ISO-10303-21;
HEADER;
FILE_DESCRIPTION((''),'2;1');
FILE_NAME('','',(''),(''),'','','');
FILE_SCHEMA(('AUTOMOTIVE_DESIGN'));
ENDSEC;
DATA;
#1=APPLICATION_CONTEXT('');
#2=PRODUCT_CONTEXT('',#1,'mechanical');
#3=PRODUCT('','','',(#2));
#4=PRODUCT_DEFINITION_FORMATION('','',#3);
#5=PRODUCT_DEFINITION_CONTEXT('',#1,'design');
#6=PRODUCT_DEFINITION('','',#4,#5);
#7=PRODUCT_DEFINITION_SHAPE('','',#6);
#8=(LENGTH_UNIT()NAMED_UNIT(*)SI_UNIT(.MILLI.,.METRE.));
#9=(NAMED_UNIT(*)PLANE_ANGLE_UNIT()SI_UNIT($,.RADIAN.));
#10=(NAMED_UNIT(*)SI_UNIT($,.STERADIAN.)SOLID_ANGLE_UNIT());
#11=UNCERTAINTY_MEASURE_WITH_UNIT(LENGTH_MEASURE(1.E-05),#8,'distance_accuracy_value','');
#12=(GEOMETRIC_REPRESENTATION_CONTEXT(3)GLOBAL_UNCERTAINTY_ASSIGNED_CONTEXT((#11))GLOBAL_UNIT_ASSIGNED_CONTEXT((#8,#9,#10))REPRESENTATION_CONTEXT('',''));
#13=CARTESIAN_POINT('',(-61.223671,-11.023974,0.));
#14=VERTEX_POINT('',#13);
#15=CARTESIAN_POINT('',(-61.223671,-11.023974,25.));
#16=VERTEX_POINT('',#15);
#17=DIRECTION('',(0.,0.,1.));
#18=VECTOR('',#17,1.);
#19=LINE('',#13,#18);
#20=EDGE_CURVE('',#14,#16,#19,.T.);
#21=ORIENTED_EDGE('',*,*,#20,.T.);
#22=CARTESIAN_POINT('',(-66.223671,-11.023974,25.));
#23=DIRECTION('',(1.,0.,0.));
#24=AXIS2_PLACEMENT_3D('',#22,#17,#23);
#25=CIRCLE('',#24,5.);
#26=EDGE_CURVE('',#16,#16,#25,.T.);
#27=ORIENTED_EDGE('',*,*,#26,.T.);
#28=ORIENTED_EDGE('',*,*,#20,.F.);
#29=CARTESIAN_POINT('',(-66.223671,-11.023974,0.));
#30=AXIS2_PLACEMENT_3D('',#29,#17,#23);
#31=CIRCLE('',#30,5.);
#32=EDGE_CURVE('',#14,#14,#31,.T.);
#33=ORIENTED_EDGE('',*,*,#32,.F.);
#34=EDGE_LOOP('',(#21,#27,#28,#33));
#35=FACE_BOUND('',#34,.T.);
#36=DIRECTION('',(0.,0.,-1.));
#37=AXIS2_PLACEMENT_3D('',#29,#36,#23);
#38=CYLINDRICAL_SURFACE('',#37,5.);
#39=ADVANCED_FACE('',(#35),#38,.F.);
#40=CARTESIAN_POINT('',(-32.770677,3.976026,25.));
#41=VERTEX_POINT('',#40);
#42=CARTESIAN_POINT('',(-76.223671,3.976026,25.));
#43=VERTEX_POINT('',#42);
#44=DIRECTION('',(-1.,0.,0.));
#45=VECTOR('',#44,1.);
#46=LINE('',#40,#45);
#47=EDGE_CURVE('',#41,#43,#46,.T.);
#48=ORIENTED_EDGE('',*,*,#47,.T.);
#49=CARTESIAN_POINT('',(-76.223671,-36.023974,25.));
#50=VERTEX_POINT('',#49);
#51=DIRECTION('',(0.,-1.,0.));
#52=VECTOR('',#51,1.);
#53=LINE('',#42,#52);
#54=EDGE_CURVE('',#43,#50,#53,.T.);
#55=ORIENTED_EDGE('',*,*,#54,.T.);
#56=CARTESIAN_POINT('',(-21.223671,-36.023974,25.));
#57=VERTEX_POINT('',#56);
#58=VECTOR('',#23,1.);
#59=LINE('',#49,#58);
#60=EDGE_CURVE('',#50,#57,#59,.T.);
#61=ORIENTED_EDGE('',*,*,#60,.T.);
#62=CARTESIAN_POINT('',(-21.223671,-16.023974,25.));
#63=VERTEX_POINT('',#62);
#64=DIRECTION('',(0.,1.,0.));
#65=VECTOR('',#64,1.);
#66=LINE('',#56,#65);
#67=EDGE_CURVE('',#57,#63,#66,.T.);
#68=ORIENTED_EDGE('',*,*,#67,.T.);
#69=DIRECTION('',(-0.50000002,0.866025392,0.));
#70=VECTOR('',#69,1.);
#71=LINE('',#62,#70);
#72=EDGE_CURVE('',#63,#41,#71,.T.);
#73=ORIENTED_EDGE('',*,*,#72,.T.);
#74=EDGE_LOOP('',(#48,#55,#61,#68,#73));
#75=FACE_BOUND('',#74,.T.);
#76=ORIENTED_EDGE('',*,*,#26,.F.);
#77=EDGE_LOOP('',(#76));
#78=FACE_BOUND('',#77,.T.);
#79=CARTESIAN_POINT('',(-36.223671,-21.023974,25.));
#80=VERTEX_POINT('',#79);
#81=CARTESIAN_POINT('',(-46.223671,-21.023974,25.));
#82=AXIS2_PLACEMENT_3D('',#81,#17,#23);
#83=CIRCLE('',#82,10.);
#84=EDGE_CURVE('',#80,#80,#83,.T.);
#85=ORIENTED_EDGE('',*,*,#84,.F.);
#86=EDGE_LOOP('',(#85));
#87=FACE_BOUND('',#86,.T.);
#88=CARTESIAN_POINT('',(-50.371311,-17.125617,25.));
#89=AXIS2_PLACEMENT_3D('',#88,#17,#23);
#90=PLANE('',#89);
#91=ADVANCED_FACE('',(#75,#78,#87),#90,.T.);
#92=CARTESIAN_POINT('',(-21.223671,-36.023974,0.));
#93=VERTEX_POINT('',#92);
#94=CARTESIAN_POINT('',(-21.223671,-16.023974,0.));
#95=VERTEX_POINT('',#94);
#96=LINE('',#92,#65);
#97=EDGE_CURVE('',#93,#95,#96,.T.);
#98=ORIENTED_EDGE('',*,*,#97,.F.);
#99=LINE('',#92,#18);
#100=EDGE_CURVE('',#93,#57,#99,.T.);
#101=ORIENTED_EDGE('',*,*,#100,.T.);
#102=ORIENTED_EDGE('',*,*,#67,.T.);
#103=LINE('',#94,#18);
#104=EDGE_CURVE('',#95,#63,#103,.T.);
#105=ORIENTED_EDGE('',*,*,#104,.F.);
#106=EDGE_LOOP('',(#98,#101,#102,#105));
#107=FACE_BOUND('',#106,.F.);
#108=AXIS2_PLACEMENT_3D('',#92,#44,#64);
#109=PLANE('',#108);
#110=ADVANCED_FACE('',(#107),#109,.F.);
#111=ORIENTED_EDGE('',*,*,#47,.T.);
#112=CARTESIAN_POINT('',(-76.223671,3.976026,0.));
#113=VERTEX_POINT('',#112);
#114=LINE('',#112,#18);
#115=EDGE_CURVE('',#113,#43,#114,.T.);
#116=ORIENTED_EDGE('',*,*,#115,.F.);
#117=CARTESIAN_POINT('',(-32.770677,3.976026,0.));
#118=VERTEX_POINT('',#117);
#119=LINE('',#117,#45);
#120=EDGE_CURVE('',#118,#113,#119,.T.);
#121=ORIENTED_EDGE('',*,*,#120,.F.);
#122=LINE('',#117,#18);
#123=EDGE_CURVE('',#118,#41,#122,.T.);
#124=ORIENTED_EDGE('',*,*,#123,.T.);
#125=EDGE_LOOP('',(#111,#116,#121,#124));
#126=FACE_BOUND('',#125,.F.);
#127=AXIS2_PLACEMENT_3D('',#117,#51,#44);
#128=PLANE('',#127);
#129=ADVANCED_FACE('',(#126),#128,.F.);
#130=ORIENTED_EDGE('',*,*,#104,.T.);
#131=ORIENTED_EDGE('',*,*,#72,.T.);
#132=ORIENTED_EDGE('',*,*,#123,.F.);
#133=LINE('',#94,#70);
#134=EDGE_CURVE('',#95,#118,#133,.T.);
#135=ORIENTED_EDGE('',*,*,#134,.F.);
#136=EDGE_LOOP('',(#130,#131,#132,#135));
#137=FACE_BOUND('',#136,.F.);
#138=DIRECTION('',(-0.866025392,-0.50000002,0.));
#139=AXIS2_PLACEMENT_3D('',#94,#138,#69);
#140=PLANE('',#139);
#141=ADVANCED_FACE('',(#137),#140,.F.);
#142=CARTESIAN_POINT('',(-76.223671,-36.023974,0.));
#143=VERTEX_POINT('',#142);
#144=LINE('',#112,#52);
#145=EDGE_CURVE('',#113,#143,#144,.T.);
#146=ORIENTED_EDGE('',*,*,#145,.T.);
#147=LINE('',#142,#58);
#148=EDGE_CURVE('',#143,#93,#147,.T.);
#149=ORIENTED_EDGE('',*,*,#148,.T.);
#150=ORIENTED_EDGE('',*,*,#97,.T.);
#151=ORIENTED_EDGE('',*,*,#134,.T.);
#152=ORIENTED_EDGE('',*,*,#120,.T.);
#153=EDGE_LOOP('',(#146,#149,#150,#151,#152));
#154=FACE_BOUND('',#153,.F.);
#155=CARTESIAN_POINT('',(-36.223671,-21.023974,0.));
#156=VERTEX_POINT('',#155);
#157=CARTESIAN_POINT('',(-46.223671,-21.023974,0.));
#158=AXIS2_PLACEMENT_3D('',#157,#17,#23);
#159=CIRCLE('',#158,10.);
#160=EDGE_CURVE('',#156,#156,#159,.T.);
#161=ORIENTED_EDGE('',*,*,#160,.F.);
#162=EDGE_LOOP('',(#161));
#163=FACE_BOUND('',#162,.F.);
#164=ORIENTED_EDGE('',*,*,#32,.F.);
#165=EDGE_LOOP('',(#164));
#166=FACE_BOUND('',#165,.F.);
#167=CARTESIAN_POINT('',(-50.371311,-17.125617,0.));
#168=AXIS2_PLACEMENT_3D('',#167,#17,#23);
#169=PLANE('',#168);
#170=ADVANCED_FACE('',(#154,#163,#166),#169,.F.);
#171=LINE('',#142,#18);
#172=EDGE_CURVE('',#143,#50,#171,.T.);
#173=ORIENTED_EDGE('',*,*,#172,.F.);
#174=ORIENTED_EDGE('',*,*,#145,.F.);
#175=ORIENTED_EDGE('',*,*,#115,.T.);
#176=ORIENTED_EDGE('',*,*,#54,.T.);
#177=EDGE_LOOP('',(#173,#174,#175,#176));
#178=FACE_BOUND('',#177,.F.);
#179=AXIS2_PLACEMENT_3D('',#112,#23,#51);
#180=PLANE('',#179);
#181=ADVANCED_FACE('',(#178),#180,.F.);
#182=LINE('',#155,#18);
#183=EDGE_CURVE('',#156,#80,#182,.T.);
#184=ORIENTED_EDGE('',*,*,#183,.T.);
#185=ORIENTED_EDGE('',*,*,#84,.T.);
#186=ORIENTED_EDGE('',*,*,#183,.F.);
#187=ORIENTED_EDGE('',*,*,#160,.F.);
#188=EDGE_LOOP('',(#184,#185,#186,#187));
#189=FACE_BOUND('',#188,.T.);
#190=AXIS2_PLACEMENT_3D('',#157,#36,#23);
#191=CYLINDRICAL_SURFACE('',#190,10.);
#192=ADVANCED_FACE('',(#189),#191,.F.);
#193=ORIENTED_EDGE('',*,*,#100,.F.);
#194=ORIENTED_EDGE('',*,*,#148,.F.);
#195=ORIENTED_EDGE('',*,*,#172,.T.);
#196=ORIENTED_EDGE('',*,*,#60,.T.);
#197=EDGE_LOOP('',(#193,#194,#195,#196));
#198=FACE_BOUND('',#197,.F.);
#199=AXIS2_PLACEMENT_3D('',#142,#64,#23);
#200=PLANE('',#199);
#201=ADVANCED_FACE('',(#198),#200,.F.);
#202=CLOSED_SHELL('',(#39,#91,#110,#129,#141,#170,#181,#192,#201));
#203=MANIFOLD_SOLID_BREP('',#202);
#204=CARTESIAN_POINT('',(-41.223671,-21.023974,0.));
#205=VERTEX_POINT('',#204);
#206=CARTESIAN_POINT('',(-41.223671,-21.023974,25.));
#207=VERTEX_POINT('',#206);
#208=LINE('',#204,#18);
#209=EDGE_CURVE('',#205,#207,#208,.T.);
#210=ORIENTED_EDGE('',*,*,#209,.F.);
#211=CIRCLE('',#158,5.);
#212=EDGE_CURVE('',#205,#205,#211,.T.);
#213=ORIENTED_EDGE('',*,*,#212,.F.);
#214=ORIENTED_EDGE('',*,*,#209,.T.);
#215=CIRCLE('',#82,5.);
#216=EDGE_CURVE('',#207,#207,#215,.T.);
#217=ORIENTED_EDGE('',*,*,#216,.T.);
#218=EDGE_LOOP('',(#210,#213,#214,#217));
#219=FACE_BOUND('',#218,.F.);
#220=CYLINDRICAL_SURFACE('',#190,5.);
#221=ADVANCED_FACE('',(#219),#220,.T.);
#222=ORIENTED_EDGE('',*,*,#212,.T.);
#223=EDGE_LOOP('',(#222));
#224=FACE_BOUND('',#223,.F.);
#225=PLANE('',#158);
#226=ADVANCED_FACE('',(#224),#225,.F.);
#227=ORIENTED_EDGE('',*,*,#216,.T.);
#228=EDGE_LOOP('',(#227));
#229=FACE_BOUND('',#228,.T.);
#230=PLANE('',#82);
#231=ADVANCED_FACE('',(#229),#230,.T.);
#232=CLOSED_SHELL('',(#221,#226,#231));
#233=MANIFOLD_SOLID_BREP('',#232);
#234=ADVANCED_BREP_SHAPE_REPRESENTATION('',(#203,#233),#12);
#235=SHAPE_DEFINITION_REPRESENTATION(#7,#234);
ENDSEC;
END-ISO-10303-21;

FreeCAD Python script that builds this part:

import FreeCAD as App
import Part
import Sketcher
from FreeCAD import Vector
Q = App.Units.Quantity

doc = App.newDocument("Part")
body = doc.addObject("PartDesign::Body", "Body")
body.AllowCompound = True

# Sketch on XY plane
sketch1 = body.newObject("Sketcher::SketchObject", "Sketch")
sketch1.AttachmentSupport = (doc.getObject("XY_Plane"), [""])
sketch1.MapMode = "FlatFace"
sketch1.addGeometry([
    Part.LineSegment(Vector(-76, -36, 0), Vector(-21, -36, 0)),  # 0
    Part.LineSegment(Vector(-21, -36, 0), Vector(-21, -16, 0)),  # 1
    Part.LineSegment(Vector(-21, -16, 0), Vector(-33, 4, 0)),  # 2
    Part.LineSegment(Vector(-33, 4, 0), Vector(-76, 4, 0)),  # 3
    Part.LineSegment(Vector(-76, 4, 0), Vector(-76, -36, 0)),  # 4
    Part.Circle(Vector(-46, -21, 0), Vector(0, 0, 1), 10),  # 5
    Part.Circle(Vector(-66, -11, 0), Vector(0, 0, 1), 5),  # 6
    Part.Circle(Vector(-46, -21, 0), Vector(0, 0, 1), 5),  # 7
], False)
sketch1.addConstraint([
    Sketcher.Constraint("Coincident", 0, 2, 1, 1),
    Sketcher.Constraint("Coincident", 1, 2, 2, 1),
    Sketcher.Constraint("Coincident", 2, 2, 3, 1),
    Sketcher.Constraint("Coincident", 3, 2, 4, 1),
    Sketcher.Constraint("Coincident", 4, 2, 0, 1),
    Sketcher.Constraint("Horizontal", 0),
    Sketcher.Constraint("Vertical", 1),
    Sketcher.Constraint("Horizontal", 3),
    Sketcher.Constraint("Vertical", 4),
    Sketcher.Constraint("Coincident", 7, 3, 5, 3),
    Sketcher.Constraint("Equal", 6, 7),
    Sketcher.Constraint("Diameter", 5, 20.0),
    Sketcher.Constraint("Diameter", 6, 10.0),
    Sketcher.Constraint("DistanceX", 0, 1, 0, 2, 55.0),
    Sketcher.Constraint("DistanceY", 1, 1, 1, 2, 20.0),
    Sketcher.Constraint("DistanceY", 4, 2, 4, 1, 40.0),
    Sketcher.Constraint("Angle", 2, Q("120.000001 deg")),
    Sketcher.Constraint("DistanceX", 6, 3, 5, 3, 20.0),
    Sketcher.Constraint("DistanceY", 5, 3, 6, 3, 10.0),
    Sketcher.Constraint("DistanceX", 5, 3, 0, 2, 25.0),
    Sketcher.Constraint("DistanceY", 0, 2, 5, 3, 15.0),
    Sketcher.Constraint("DistanceX", 5, 3, -1, 1, 46.223671),
    Sketcher.Constraint("DistanceY", 5, 3, -1, 1, 21.023974),
])
pad1 = body.newObject("PartDesign::Pad", "Pad")
pad1.Profile = sketch1
pad1.Length = 25

doc.recompute()
